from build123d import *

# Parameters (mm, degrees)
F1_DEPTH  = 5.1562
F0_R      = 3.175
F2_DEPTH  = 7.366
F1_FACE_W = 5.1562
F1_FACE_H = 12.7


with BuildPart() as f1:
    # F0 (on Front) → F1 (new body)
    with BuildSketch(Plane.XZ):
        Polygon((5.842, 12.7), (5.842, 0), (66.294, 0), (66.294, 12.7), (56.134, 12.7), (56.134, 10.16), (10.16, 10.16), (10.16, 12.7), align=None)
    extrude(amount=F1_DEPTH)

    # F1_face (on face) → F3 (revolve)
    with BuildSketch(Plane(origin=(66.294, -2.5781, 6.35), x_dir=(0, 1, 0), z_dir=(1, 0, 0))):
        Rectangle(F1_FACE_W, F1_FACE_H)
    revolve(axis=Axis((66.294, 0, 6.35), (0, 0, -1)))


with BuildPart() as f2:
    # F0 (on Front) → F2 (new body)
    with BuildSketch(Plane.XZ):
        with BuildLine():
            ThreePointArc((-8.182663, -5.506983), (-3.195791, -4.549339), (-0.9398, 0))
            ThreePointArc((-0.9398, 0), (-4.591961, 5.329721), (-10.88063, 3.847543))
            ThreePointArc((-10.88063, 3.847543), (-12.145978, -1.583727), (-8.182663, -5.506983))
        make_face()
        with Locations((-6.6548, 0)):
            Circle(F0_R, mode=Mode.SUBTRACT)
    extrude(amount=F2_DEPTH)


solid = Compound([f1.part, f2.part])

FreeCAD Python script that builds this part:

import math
import FreeCAD as App
import Part
import Sketcher
from FreeCAD import Vector
Q = App.Units.Quantity

doc = App.newDocument("Part")
body = doc.addObject("PartDesign::Body", "Body")

sketch1 = body.newObject("Sketcher::SketchObject", "Sketch")
sketch1.AttachmentSupport = (doc.getObject("XZ_Plane"), [""])
sketch1.MapMode = "FlatFace"
sketch1.addGeometry([
    Part.LineSegment(Vector(5.8, 12.7, 0), Vector(5.8, 0, 0)),
    Part.LineSegment(Vector(5.8, 0, 0), Vector(66.3, 0, 0)),
    Part.LineSegment(Vector(66.3, 0, 0), Vector(66.3, 12.7, 0)),
    Part.LineSegment(Vector(66.3, 12.7, 0), Vector(56.1, 12.7, 0)),
    Part.LineSegment(Vector(56.1, 12.7, 0), Vector(56.1, 10.2, 0)),
    Part.LineSegment(Vector(56.1, 10.2, 0), Vector(10.2, 10.2, 0)),
    Part.LineSegment(Vector(10.2, 10.2, 0), Vector(10.2, 12.7, 0)),
    Part.LineSegment(Vector(10.2, 12.7, 0), Vector(5.8, 12.7, 0)),
], False)
sketch1.addConstraint([
    Sketcher.Constraint("Coincident", 0, 2, 1, 1),
    Sketcher.Constraint("Coincident", 1, 2, 2, 1),
    Sketcher.Constraint("Coincident", 2, 2, 3, 1),
    Sketcher.Constraint("Coincident", 3, 2, 4, 1),
    Sketcher.Constraint("Coincident", 4, 2, 5, 1),
    Sketcher.Constraint("Coincident", 5, 2, 6, 1),
    Sketcher.Constraint("Coincident", 6, 2, 7, 1),
    Sketcher.Constraint("Coincident", 7, 2, 0, 1),
    Sketcher.Constraint("Vertical", 0),
    Sketcher.Constraint("Horizontal", 1),
    Sketcher.Constraint("Vertical", 2),
    Sketcher.Constraint("Horizontal", 3),
    Sketcher.Constraint("Vertical", 4),
    Sketcher.Constraint("Horizontal", 5),
    Sketcher.Constraint("Vertical", 6),
    Sketcher.Constraint("Horizontal", 7),
    Sketcher.Constraint("PointOnObject", 0, 2, -1),
    Sketcher.Constraint("Horizontal", 3, 2, 6, 2),
    Sketcher.Constraint("DistanceX", 3, 2, 3, 1, Q("0.4 in")),
    Sketcher.Constraint("DistanceY", 0, 2, 0, 1, Q("0.5 in")),
    Sketcher.Constraint("DistanceY", 4, 2, 4, 1, Q("0.1 in")),
    Sketcher.Constraint("DistanceX", 1, 1, 1, 2, Q("2.38 in")),
    Sketcher.Constraint("DistanceX", 5, 2, 5, 1, Q("1.81 in")),
    Sketcher.Constraint("DistanceX", -1, 1, 5, 2, Q("0.4 in")),
])
pad1 = body.newObject("PartDesign::Pad", "Pad")
pad1.Profile = sketch1
pad1.Length = Q("0.203 in")

sketch2 = body.newObject("Sketcher::SketchObject", "Sketch001")
sketch2.AttachmentSupport = (doc.getObject("YZ_Plane"), [""])
sketch2.MapMode = "FlatFace"
sketch2.AttachmentOffset = App.Placement(Vector(0, 0, 2.61 * 25.4), App.Rotation())
sketch2.addGeometry([
    Part.LineSegment(Vector(-5, 13, 0), Vector(-5, 0, 0)),
    Part.LineSegment(Vector(-5, 0, 0), Vector(0, 0, 0)),
    Part.LineSegment(Vector(0, 0, 0), Vector(0, 13, 0)),
    Part.LineSegment(Vector(0, 13, 0), Vector(-5, 13, 0)),
], False)
sketch2.addConstraint([
    Sketcher.Constraint("Coincident", 0, 2, 1, 1),
    Sketcher.Constraint("Coincident", 1, 2, 2, 1),
    Sketcher.Constraint("Coincident", 2, 2, 3, 1),
    Sketcher.Constraint("Coincident", 3, 2, 0, 1),
    Sketcher.Constraint("Vertical", 0),
    Sketcher.Constraint("Horizontal", 1),
    Sketcher.Constraint("Vertical", 2),
    Sketcher.Constraint("Horizontal", 3),
    Sketcher.Constraint("Coincident", 1, 2, -1, 1),
    Sketcher.Constraint("DistanceY", 0, 2, 0, 1, Q("0.5 in")),
    Sketcher.Constraint("DistanceX", 1, 1, 1, 2, Q("0.203 in")),
])
revolution = body.newObject("PartDesign::Revolution", "Revolution")
revolution.Profile = sketch2
revolution.ReferenceAxis = (sketch2, ["V_Axis"])
revolution.Angle = 360
body2 = doc.addObject("PartDesign::Body", "Body001")

sketch3 = body2.newObject("Sketcher::SketchObject", "Sketch002")
sketch3.AttachmentSupport = (doc.getObject("XZ_Plane001"), [""])
sketch3.MapMode = "FlatFace"
sketch3.addGeometry([
    Part.ArcOfCircle(Part.Circle(Vector(-6.7, 0, 0), Vector(0, 0, 1), 5.7), math.radians(-106), math.radians(0)),
    Part.ArcOfCircle(Part.Circle(Vector(-6.7, 0, 0), Vector(0, 0, 1), 5.7), math.radians(0), math.radians(138)),
    Part.ArcOfCircle(Part.Circle(Vector(-6.7, 0, 0), Vector(0, 0, 1), 5.7), math.radians(138), math.radians(254)),
    Part.Circle(Vector(-6.7, 0, 0), Vector(0, 0, 1), 3.2),
], False)
sketch3.addConstraint([
    Sketcher.Constraint("Tangent", 0, 2, 1, 1),
    Sketcher.Constraint("Tangent", 1, 2, 2, 1),
    Sketcher.Constraint("Tangent", 2, 2, 0, 1),
    Sketcher.Constraint("Coincident", 3, 3, 0, 3),
    Sketcher.Constraint("PointOnObject", 0, 3, -1),
    Sketcher.Constraint("PointOnObject", 0, 2, -1),
    Sketcher.Constraint("Diameter", 3, Q("0.25 in")),
    Sketcher.Constraint("Radius", 0, Q("0.225 in")),
    Sketcher.Constraint("DistanceX", 0, 3, -1, 1, Q("0.262 in")),
    Sketcher.Constraint("DistanceX", 1, 2, -1, 1, Q("10.88063 mm")),
    Sketcher.Constraint("DistanceX", 2, 2, -1, 1, Q("8.182663 mm")),
])
pad2 = body2.newObject("PartDesign::Pad", "Pad001")
pad2.Profile = sketch3
pad2.Length = Q("0.29 in")

doc.recompute()
